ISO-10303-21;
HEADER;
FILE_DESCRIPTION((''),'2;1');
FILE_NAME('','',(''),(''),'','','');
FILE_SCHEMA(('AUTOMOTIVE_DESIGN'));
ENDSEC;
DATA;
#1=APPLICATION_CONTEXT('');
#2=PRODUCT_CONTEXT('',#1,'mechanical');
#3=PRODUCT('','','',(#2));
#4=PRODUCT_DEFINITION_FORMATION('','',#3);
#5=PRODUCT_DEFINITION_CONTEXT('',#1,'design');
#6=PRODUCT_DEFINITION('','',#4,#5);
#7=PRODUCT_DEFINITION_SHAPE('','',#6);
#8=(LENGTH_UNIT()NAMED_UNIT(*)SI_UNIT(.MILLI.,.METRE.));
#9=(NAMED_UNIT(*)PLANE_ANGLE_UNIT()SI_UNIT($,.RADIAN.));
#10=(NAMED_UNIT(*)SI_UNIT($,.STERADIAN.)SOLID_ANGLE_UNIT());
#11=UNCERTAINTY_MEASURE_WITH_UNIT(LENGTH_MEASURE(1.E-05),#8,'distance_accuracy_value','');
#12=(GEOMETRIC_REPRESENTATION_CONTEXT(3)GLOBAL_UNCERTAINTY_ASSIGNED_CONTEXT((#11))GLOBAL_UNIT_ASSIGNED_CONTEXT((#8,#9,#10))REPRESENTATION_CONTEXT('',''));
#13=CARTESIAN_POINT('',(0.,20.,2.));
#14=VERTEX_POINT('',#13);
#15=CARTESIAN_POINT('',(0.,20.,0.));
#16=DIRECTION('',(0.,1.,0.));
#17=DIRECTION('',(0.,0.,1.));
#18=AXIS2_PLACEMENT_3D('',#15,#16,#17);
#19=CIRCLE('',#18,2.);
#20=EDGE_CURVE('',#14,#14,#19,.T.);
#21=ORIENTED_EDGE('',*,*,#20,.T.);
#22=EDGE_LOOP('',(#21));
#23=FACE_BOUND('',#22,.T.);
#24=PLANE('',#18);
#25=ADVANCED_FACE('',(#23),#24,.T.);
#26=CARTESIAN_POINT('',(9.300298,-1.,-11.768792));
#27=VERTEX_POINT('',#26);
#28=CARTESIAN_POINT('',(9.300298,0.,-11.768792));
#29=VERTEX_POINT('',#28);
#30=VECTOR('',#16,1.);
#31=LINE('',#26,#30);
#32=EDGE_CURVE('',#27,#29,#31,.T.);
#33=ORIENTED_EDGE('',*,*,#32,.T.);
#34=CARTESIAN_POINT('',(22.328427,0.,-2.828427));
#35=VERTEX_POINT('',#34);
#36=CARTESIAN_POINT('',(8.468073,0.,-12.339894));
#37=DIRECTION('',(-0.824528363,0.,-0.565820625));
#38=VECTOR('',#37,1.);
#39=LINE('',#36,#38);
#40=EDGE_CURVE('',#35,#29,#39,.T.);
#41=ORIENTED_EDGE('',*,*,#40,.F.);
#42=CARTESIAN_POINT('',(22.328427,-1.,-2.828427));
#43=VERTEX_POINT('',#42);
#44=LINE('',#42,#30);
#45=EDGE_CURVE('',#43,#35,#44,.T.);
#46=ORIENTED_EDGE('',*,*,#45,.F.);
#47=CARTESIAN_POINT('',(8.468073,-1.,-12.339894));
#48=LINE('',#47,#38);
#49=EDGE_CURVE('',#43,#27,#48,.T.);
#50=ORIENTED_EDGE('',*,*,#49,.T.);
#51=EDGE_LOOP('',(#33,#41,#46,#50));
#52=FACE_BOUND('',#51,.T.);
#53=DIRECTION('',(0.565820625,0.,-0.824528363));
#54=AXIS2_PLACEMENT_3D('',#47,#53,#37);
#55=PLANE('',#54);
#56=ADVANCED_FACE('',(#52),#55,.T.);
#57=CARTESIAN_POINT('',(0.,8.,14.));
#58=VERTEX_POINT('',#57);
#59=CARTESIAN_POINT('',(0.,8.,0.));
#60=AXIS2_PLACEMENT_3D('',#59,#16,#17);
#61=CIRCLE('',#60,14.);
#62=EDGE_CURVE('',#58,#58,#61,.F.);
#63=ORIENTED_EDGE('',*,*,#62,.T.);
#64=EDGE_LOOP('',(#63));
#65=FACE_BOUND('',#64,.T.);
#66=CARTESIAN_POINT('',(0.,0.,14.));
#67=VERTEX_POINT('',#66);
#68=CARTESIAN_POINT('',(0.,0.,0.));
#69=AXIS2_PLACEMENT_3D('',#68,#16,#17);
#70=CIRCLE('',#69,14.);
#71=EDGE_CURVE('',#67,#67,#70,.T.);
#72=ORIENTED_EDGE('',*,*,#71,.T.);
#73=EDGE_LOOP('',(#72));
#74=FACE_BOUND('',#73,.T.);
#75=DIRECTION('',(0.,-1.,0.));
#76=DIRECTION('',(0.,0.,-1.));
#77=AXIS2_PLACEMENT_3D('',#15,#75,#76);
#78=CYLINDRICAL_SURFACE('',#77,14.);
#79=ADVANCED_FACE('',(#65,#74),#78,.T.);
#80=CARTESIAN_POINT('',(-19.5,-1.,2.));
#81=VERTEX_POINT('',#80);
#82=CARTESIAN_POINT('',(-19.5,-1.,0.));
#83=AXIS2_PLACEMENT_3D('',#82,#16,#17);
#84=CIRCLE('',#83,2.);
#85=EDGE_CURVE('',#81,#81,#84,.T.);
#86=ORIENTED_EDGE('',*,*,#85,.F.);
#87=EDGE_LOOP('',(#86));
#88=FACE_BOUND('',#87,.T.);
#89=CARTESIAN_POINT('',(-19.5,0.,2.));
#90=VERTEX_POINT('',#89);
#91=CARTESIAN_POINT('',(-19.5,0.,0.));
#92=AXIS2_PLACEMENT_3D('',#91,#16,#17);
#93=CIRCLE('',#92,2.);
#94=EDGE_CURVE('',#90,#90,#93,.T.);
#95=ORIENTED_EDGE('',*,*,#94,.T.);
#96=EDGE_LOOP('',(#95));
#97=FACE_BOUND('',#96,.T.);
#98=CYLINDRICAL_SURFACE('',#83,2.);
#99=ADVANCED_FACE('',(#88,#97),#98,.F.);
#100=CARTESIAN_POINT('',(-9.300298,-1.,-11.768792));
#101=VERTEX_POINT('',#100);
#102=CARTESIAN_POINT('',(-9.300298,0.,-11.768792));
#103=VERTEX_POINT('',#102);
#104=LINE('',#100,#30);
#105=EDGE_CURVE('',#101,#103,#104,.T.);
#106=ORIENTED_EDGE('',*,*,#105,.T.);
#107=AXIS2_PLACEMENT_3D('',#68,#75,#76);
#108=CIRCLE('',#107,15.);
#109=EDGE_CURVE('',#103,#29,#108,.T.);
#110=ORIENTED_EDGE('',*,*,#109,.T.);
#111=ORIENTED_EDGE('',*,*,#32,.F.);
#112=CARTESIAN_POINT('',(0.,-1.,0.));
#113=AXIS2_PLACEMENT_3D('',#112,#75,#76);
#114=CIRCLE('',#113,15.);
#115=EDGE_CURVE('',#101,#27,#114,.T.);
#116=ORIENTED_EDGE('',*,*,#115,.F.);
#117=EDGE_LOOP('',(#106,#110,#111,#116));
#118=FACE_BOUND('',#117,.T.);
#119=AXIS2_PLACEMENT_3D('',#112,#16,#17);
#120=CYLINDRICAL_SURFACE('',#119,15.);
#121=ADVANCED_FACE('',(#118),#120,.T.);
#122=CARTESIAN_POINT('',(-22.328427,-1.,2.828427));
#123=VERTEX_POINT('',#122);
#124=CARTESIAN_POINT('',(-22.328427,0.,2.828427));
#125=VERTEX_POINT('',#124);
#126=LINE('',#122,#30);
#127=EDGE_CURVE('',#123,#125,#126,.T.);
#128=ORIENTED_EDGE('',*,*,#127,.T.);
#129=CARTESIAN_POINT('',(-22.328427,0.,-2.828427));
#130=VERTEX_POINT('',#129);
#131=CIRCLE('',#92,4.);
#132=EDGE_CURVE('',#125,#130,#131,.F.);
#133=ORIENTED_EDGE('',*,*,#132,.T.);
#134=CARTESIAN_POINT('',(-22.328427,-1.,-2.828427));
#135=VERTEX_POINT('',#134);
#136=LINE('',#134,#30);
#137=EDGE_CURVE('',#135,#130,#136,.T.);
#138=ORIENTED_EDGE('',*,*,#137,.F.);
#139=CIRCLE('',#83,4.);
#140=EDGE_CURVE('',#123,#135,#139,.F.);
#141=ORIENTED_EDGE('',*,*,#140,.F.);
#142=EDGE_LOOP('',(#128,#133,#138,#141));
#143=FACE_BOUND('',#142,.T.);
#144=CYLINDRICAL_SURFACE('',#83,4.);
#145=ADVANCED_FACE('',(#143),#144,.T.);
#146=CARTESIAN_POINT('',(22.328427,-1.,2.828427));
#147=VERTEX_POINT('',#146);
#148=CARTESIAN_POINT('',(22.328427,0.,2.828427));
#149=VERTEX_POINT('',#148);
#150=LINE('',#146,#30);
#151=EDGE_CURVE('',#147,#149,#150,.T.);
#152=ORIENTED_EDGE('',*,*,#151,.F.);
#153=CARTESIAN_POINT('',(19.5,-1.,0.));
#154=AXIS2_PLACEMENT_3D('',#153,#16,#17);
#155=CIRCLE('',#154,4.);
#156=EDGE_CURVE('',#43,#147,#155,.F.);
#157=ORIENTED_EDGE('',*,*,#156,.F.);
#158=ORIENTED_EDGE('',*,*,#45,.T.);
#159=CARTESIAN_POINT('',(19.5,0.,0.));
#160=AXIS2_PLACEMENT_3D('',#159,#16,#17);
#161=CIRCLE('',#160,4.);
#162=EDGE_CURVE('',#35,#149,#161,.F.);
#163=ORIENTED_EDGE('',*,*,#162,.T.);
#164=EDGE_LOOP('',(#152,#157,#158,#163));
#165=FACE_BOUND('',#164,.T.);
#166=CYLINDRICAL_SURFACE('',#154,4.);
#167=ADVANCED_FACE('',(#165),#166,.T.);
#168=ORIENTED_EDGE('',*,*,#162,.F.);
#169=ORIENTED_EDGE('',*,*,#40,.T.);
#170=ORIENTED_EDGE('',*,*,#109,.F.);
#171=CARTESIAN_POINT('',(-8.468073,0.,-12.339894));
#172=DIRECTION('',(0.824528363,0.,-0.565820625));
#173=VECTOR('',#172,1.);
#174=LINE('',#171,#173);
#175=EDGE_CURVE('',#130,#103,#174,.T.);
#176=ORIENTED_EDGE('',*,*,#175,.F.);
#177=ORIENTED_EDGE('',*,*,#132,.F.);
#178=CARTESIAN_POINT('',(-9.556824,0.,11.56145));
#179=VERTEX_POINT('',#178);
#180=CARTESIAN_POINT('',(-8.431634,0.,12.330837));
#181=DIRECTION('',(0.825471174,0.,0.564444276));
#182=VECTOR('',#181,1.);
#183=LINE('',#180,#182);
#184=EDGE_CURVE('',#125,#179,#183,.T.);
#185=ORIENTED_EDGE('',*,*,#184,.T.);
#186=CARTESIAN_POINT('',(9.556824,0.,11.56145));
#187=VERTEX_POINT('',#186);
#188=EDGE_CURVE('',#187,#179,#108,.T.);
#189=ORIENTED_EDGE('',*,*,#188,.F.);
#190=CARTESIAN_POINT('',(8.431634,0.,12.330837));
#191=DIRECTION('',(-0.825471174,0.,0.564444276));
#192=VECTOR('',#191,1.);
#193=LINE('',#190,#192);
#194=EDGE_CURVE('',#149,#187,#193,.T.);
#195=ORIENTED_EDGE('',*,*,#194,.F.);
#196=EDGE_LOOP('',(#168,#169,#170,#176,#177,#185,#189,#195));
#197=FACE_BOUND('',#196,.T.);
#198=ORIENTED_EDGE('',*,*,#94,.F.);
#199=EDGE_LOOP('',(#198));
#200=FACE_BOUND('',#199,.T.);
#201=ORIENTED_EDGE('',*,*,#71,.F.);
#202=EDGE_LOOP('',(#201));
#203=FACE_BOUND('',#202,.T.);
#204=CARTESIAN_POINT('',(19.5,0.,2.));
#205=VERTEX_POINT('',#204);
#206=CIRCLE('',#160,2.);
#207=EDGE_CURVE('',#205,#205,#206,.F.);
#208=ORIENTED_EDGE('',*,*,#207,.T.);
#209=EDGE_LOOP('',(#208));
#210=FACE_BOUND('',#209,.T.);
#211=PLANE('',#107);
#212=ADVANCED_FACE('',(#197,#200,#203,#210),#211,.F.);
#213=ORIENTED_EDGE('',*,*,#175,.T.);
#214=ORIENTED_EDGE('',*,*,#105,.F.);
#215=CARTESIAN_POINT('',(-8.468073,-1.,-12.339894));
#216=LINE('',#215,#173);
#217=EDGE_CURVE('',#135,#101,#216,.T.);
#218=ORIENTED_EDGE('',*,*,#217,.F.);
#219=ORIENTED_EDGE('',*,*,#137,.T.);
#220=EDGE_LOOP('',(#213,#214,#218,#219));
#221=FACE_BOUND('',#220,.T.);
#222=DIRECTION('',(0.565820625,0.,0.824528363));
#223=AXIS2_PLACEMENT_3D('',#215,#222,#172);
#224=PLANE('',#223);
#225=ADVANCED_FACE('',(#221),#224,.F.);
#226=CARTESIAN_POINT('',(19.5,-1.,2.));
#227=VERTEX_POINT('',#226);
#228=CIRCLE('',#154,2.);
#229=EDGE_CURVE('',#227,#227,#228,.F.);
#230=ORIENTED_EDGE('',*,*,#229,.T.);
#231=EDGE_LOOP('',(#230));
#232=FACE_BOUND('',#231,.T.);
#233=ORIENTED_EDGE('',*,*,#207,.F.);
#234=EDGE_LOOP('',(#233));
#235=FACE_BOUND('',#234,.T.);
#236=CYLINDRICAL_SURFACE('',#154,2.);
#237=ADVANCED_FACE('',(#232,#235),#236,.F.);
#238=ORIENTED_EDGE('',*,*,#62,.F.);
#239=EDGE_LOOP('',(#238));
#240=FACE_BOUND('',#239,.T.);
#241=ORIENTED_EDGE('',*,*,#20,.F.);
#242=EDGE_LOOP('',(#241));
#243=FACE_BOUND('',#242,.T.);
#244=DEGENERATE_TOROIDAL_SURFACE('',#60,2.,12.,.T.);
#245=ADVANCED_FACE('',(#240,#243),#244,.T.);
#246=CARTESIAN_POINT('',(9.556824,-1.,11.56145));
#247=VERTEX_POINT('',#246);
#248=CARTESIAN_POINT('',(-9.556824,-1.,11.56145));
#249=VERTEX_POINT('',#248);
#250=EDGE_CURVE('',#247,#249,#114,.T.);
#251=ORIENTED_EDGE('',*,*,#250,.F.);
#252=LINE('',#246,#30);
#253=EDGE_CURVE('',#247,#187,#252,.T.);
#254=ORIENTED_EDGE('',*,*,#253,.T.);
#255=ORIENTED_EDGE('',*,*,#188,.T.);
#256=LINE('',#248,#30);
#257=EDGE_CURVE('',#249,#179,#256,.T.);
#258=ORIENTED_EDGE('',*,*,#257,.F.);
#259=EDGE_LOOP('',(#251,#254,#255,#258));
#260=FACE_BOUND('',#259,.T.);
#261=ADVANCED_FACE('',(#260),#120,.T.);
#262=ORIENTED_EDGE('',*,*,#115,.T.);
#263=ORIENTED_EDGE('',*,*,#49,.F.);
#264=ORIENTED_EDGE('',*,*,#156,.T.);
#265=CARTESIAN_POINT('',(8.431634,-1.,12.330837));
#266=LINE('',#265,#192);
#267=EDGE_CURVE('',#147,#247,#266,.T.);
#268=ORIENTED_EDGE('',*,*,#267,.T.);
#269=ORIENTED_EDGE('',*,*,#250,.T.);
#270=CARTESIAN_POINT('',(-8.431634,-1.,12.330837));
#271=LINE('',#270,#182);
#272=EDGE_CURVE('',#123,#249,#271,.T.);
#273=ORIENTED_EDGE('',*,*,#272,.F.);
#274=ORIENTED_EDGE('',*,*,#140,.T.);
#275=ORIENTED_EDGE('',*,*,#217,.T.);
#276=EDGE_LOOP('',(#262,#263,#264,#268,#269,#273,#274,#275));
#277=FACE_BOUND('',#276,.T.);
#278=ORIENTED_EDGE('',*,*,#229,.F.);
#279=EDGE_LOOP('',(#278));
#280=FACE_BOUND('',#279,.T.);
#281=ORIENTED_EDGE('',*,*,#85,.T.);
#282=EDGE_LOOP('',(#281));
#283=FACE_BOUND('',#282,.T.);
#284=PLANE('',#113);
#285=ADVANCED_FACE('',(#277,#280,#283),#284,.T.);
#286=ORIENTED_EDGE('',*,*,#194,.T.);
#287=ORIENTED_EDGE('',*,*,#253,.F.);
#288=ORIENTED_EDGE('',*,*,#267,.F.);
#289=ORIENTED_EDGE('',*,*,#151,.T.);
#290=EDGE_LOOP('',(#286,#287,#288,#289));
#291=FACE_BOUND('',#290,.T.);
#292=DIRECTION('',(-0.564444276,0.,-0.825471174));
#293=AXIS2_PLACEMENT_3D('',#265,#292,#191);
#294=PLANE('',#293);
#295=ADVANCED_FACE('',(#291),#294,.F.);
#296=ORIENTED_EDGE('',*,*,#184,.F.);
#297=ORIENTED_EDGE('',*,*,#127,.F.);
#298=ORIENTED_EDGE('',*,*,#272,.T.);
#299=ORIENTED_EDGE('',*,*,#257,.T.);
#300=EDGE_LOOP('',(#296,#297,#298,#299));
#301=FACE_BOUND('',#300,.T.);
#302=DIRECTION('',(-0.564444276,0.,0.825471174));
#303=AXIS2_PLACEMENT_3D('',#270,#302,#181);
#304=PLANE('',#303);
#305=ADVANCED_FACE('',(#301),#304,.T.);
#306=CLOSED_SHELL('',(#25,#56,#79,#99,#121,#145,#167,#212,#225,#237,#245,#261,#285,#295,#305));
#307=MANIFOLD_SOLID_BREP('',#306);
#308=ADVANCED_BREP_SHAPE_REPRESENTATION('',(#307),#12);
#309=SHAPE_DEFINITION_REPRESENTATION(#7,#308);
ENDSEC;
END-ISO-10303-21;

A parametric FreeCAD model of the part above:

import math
import FreeCAD as App
import Part
import Sketcher
Q = App.Units.Quantity


def edges_at(feature, points):
    """Names of the edges that pass closest to the given points."""
    edges = feature.Shape.Edges
    near = lambda p: min(range(len(edges)), key=lambda i: edges[i].distToShape(Part.Vertex(*p))[0])
    return sorted({f"Edge{near(p) + 1}" for p in points})

doc = App.newDocument("Part")
params = doc.addObject("Spreadsheet::Sheet", "Params")
for row, (alias, value) in enumerate([
    ("sketch1_diameter", "28 mm"),
    ("pad1_length", "20 mm"),
    ("fillet_radius", "12 mm"),
    ("sketch2_diameter", "30 mm"),
    ("pad2_length", "1 mm"),
    ("sketch3_diameter", "4 mm"),
    ("sketch3_radius", "4 mm"),
    ("sketch3_radius2", "15 mm"),
    ("pad3_length", "1 mm"),
], start=1):
    params.set(f"A{row}", alias)
    params.set(f"B{row}", "=" + value)
    params.setAlias(f"B{row}", alias)

body = doc.addObject("PartDesign::Body", "Body")

sketch1 = doc.addObject("Sketcher::SketchObject", "Sketch")
body.addObject(sketch1)
sketch1.AttachmentSupport = (doc.XZ_Plane, [""])
sketch1.MapMode = "FlatFace"
sketch1.addGeometry(Part.Circle(App.Vector(0, 0, 0), App.Vector(0, 0, 1), 14), False)
sketch1.addConstraint(Sketcher.Constraint("Coincident", 0, 3, -1, 1))
sketch1.addConstraint(Sketcher.Constraint("Diameter", 0, Q("28 mm")))
sketch1.setExpression("Constraints[1]", "Params.sketch1_diameter")
pad1 = doc.addObject("PartDesign::Pad", "Pad")
body.addObject(pad1)
pad1.Profile = sketch1
pad1.setExpression("Length", "Params.pad1_length")
pad1.Reversed = True
doc.recompute()

fillet = doc.addObject("PartDesign::Fillet", "Fillet")
body.addObject(fillet)
fillet.Base = (pad1, edges_at(pad1, [(-14, 20, 0)]))
fillet.setExpression("Radius", "Params.fillet_radius")

sketch2 = doc.addObject("Sketcher::SketchObject", "Sketch001")
body.addObject(sketch2)
sketch2.AttachmentSupport = (doc.XZ_Plane, [""])
sketch2.MapMode = "FlatFace"
sketch2.addGeometry(Part.Circle(App.Vector(0, 0, 0), App.Vector(0, 0, 1), 15), False)
sketch2.addConstraint(Sketcher.Constraint("Coincident", 0, 3, -1, 1))
sketch2.addConstraint(Sketcher.Constraint("Diameter", 0, Q("30 mm")))
sketch2.setExpression("Constraints[1]", "Params.sketch2_diameter")
pad2 = doc.addObject("PartDesign::Pad", "Pad001")
body.addObject(pad2)
pad2.Profile = sketch2
pad2.setExpression("Length", "Params.pad2_length")

sketch3 = doc.addObject("Sketcher::SketchObject", "Sketch002")
body.addObject(sketch3)
sketch3.AttachmentSupport = (doc.XZ_Plane, [""])
sketch3.MapMode = "FlatFace"
sketch3.addGeometry(Part.LineSegment(App.Vector(-9.3, -11.8, 0), App.Vector(-22.3, -2.8, 0)), False)
sketch3.addGeometry(Part.ArcOfCircle(Part.Circle(App.Vector(-19.5, 0, 0), App.Vector(0, 0, 1), 4), math.radians(-180), math.radians(-135)), False)
sketch3.addGeometry(Part.ArcOfCircle(Part.Circle(App.Vector(-19.5, 0, 0), App.Vector(0, 0, 1), 4), math.radians(135), math.radians(180)), False)
sketch3.addGeometry(Part.LineSegment(App.Vector(-22.3, 2.8, 0), App.Vector(-9.6, 11.6, 0)), False)
sketch3.addGeometry(Part.ArcOfCircle(Part.Circle(App.Vector(0, 0, 0), App.Vector(0, 0, 1), 15), math.radians(130), math.radians(232)), False)
sketch3.addGeometry(Part.Circle(App.Vector(-19.5, 0, 0), App.Vector(0, 0, 1), 2), False)
sketch3.addGeometry(Part.LineSegment(App.Vector(22.3, -2.8, 0), App.Vector(9.3, -11.8, 0)), False)
sketch3.addGeometry(Part.ArcOfCircle(Part.Circle(App.Vector(0, 0, 0), App.Vector(0, 0, 1), 15), math.radians(-52), math.radians(0)), False)
sketch3.addGeometry(Part.ArcOfCircle(Part.Circle(App.Vector(0, 0, 0), App.Vector(0, 0, 1), 15), math.radians(0), math.radians(50)), False)
sketch3.addGeometry(Part.LineSegment(App.Vector(9.6, 11.6, 0), App.Vector(22.3, 2.8, 0)), False)
sketch3.addGeometry(Part.ArcOfCircle(Part.Circle(App.Vector(19.5, 0, 0), App.Vector(0, 0, 1), 4), math.radians(0), math.radians(45)), False)
sketch3.addGeometry(Part.ArcOfCircle(Part.Circle(App.Vector(19.5, 0, 0), App.Vector(0, 0, 1), 4), math.radians(-45), math.radians(0)), False)
sketch3.addGeometry(Part.Circle(App.Vector(19.5, 0, 0), App.Vector(0, 0, 1), 2), False)
sketch3.addConstraint(Sketcher.Constraint("Coincident", 0, 2, 1, 2))
sketch3.addConstraint(Sketcher.Constraint("Tangent", 1, 1, 2, 2))
sketch3.addConstraint(Sketcher.Constraint("Coincident", 2, 1, 3, 1))
sketch3.addConstraint(Sketcher.Constraint("Coincident", 3, 2, 4, 1))
sketch3.addConstraint(Sketcher.Constraint("Coincident", 4, 2, 0, 1))
sketch3.addConstraint(Sketcher.Constraint("Coincident", 6, 2, 7, 1))
sketch3.addConstraint(Sketcher.Constraint("Tangent", 7, 2, 8, 1))
sketch3.addConstraint(Sketcher.Constraint("Coincident", 8, 2, 9, 1))
sketch3.addConstraint(Sketcher.Constraint("Coincident", 9, 2, 10, 2))
sketch3.addConstraint(Sketcher.Constraint("Tangent", 10, 1, 11, 2))
sketch3.addConstraint(Sketcher.Constraint("Coincident", 11, 1, 6, 1))
sketch3.addConstraint(Sketcher.Constraint("Coincident", 4, 3, -1, 1))
sketch3.addConstraint(Sketcher.Constraint("Coincident", 7, 3, -1, 1))
sketch3.addConstraint(Sketcher.Constraint("Coincident", 5, 3, 1, 3))
sketch3.addConstraint(Sketcher.Constraint("Coincident", 12, 3, 10, 3))
sketch3.addConstraint(Sketcher.Constraint("Equal", 1, 2))
sketch3.addConstraint(Sketcher.Constraint("Equal", 4, 7))
sketch3.addConstraint(Sketcher.Constraint("Equal", 7, 8))
sketch3.addConstraint(Sketcher.Constraint("Equal", 2, 10))
sketch3.addConstraint(Sketcher.Constraint("Equal", 10, 11))
sketch3.addConstraint(Sketcher.Constraint("Equal", 5, 12))
sketch3.addConstraint(Sketcher.Constraint("Symmetric", 1, 3, 10, 3, -1, 1))
sketch3.addConstraint(Sketcher.Constraint("Symmetric", 2, 1, 9, 2, -2))
sketch3.addConstraint(Sketcher.Constraint("PointOnObject", 1, 1, -1))
sketch3.addConstraint(Sketcher.Constraint("PointOnObject", 7, 2, -1))
sketch3.addConstraint(Sketcher.Constraint("PointOnObject", 10, 1, -1))
sketch3.addConstraint(Sketcher.Constraint("Horizontal", 4, 2, 6, 2))
sketch3.addConstraint(Sketcher.Constraint("Horizontal", 3, 2, 8, 2))
sketch3.addConstraint(Sketcher.Constraint("Horizontal", 0, 2, 11, 1))
sketch3.addConstraint(Sketcher.Constraint("Vertical", 0, 2, 2, 1))
sketch3.addConstraint(Sketcher.Constraint("Diameter", 5, Q("4 mm")))
sketch3.addConstraint(Sketcher.Constraint("Radius", 1, Q("4 mm")))
sketch3.addConstraint(Sketcher.Constraint("Radius", 4, Q("15 mm")))
sketch3.addConstraint(Sketcher.Constraint("DistanceX", 1, 3, 10, 3, Q("39 mm")))
sketch3.addConstraint(Sketcher.Constraint("DistanceY", -1, 1, 3, 2, Q("11.56145 mm")))
sketch3.addConstraint(Sketcher.Constraint("DistanceY", 4, 2, -1, 1, Q("11.768792 mm")))
sketch3.addConstraint(Sketcher.Constraint("Distance", 0, Q("15.800705 mm")))
sketch3.setExpression("Constraints[30]", "Params.sketch3_diameter")
sketch3.setExpression("Constraints[31]", "Params.sketch3_radius")
sketch3.setExpression("Constraints[32]", "Params.sketch3_radius2")
pad3 = doc.addObject("PartDesign::Pad", "Pad002")
body.addObject(pad3)
pad3.Profile = sketch3
pad3.setExpression("Length", "Params.pad3_length")

doc.recompute()
